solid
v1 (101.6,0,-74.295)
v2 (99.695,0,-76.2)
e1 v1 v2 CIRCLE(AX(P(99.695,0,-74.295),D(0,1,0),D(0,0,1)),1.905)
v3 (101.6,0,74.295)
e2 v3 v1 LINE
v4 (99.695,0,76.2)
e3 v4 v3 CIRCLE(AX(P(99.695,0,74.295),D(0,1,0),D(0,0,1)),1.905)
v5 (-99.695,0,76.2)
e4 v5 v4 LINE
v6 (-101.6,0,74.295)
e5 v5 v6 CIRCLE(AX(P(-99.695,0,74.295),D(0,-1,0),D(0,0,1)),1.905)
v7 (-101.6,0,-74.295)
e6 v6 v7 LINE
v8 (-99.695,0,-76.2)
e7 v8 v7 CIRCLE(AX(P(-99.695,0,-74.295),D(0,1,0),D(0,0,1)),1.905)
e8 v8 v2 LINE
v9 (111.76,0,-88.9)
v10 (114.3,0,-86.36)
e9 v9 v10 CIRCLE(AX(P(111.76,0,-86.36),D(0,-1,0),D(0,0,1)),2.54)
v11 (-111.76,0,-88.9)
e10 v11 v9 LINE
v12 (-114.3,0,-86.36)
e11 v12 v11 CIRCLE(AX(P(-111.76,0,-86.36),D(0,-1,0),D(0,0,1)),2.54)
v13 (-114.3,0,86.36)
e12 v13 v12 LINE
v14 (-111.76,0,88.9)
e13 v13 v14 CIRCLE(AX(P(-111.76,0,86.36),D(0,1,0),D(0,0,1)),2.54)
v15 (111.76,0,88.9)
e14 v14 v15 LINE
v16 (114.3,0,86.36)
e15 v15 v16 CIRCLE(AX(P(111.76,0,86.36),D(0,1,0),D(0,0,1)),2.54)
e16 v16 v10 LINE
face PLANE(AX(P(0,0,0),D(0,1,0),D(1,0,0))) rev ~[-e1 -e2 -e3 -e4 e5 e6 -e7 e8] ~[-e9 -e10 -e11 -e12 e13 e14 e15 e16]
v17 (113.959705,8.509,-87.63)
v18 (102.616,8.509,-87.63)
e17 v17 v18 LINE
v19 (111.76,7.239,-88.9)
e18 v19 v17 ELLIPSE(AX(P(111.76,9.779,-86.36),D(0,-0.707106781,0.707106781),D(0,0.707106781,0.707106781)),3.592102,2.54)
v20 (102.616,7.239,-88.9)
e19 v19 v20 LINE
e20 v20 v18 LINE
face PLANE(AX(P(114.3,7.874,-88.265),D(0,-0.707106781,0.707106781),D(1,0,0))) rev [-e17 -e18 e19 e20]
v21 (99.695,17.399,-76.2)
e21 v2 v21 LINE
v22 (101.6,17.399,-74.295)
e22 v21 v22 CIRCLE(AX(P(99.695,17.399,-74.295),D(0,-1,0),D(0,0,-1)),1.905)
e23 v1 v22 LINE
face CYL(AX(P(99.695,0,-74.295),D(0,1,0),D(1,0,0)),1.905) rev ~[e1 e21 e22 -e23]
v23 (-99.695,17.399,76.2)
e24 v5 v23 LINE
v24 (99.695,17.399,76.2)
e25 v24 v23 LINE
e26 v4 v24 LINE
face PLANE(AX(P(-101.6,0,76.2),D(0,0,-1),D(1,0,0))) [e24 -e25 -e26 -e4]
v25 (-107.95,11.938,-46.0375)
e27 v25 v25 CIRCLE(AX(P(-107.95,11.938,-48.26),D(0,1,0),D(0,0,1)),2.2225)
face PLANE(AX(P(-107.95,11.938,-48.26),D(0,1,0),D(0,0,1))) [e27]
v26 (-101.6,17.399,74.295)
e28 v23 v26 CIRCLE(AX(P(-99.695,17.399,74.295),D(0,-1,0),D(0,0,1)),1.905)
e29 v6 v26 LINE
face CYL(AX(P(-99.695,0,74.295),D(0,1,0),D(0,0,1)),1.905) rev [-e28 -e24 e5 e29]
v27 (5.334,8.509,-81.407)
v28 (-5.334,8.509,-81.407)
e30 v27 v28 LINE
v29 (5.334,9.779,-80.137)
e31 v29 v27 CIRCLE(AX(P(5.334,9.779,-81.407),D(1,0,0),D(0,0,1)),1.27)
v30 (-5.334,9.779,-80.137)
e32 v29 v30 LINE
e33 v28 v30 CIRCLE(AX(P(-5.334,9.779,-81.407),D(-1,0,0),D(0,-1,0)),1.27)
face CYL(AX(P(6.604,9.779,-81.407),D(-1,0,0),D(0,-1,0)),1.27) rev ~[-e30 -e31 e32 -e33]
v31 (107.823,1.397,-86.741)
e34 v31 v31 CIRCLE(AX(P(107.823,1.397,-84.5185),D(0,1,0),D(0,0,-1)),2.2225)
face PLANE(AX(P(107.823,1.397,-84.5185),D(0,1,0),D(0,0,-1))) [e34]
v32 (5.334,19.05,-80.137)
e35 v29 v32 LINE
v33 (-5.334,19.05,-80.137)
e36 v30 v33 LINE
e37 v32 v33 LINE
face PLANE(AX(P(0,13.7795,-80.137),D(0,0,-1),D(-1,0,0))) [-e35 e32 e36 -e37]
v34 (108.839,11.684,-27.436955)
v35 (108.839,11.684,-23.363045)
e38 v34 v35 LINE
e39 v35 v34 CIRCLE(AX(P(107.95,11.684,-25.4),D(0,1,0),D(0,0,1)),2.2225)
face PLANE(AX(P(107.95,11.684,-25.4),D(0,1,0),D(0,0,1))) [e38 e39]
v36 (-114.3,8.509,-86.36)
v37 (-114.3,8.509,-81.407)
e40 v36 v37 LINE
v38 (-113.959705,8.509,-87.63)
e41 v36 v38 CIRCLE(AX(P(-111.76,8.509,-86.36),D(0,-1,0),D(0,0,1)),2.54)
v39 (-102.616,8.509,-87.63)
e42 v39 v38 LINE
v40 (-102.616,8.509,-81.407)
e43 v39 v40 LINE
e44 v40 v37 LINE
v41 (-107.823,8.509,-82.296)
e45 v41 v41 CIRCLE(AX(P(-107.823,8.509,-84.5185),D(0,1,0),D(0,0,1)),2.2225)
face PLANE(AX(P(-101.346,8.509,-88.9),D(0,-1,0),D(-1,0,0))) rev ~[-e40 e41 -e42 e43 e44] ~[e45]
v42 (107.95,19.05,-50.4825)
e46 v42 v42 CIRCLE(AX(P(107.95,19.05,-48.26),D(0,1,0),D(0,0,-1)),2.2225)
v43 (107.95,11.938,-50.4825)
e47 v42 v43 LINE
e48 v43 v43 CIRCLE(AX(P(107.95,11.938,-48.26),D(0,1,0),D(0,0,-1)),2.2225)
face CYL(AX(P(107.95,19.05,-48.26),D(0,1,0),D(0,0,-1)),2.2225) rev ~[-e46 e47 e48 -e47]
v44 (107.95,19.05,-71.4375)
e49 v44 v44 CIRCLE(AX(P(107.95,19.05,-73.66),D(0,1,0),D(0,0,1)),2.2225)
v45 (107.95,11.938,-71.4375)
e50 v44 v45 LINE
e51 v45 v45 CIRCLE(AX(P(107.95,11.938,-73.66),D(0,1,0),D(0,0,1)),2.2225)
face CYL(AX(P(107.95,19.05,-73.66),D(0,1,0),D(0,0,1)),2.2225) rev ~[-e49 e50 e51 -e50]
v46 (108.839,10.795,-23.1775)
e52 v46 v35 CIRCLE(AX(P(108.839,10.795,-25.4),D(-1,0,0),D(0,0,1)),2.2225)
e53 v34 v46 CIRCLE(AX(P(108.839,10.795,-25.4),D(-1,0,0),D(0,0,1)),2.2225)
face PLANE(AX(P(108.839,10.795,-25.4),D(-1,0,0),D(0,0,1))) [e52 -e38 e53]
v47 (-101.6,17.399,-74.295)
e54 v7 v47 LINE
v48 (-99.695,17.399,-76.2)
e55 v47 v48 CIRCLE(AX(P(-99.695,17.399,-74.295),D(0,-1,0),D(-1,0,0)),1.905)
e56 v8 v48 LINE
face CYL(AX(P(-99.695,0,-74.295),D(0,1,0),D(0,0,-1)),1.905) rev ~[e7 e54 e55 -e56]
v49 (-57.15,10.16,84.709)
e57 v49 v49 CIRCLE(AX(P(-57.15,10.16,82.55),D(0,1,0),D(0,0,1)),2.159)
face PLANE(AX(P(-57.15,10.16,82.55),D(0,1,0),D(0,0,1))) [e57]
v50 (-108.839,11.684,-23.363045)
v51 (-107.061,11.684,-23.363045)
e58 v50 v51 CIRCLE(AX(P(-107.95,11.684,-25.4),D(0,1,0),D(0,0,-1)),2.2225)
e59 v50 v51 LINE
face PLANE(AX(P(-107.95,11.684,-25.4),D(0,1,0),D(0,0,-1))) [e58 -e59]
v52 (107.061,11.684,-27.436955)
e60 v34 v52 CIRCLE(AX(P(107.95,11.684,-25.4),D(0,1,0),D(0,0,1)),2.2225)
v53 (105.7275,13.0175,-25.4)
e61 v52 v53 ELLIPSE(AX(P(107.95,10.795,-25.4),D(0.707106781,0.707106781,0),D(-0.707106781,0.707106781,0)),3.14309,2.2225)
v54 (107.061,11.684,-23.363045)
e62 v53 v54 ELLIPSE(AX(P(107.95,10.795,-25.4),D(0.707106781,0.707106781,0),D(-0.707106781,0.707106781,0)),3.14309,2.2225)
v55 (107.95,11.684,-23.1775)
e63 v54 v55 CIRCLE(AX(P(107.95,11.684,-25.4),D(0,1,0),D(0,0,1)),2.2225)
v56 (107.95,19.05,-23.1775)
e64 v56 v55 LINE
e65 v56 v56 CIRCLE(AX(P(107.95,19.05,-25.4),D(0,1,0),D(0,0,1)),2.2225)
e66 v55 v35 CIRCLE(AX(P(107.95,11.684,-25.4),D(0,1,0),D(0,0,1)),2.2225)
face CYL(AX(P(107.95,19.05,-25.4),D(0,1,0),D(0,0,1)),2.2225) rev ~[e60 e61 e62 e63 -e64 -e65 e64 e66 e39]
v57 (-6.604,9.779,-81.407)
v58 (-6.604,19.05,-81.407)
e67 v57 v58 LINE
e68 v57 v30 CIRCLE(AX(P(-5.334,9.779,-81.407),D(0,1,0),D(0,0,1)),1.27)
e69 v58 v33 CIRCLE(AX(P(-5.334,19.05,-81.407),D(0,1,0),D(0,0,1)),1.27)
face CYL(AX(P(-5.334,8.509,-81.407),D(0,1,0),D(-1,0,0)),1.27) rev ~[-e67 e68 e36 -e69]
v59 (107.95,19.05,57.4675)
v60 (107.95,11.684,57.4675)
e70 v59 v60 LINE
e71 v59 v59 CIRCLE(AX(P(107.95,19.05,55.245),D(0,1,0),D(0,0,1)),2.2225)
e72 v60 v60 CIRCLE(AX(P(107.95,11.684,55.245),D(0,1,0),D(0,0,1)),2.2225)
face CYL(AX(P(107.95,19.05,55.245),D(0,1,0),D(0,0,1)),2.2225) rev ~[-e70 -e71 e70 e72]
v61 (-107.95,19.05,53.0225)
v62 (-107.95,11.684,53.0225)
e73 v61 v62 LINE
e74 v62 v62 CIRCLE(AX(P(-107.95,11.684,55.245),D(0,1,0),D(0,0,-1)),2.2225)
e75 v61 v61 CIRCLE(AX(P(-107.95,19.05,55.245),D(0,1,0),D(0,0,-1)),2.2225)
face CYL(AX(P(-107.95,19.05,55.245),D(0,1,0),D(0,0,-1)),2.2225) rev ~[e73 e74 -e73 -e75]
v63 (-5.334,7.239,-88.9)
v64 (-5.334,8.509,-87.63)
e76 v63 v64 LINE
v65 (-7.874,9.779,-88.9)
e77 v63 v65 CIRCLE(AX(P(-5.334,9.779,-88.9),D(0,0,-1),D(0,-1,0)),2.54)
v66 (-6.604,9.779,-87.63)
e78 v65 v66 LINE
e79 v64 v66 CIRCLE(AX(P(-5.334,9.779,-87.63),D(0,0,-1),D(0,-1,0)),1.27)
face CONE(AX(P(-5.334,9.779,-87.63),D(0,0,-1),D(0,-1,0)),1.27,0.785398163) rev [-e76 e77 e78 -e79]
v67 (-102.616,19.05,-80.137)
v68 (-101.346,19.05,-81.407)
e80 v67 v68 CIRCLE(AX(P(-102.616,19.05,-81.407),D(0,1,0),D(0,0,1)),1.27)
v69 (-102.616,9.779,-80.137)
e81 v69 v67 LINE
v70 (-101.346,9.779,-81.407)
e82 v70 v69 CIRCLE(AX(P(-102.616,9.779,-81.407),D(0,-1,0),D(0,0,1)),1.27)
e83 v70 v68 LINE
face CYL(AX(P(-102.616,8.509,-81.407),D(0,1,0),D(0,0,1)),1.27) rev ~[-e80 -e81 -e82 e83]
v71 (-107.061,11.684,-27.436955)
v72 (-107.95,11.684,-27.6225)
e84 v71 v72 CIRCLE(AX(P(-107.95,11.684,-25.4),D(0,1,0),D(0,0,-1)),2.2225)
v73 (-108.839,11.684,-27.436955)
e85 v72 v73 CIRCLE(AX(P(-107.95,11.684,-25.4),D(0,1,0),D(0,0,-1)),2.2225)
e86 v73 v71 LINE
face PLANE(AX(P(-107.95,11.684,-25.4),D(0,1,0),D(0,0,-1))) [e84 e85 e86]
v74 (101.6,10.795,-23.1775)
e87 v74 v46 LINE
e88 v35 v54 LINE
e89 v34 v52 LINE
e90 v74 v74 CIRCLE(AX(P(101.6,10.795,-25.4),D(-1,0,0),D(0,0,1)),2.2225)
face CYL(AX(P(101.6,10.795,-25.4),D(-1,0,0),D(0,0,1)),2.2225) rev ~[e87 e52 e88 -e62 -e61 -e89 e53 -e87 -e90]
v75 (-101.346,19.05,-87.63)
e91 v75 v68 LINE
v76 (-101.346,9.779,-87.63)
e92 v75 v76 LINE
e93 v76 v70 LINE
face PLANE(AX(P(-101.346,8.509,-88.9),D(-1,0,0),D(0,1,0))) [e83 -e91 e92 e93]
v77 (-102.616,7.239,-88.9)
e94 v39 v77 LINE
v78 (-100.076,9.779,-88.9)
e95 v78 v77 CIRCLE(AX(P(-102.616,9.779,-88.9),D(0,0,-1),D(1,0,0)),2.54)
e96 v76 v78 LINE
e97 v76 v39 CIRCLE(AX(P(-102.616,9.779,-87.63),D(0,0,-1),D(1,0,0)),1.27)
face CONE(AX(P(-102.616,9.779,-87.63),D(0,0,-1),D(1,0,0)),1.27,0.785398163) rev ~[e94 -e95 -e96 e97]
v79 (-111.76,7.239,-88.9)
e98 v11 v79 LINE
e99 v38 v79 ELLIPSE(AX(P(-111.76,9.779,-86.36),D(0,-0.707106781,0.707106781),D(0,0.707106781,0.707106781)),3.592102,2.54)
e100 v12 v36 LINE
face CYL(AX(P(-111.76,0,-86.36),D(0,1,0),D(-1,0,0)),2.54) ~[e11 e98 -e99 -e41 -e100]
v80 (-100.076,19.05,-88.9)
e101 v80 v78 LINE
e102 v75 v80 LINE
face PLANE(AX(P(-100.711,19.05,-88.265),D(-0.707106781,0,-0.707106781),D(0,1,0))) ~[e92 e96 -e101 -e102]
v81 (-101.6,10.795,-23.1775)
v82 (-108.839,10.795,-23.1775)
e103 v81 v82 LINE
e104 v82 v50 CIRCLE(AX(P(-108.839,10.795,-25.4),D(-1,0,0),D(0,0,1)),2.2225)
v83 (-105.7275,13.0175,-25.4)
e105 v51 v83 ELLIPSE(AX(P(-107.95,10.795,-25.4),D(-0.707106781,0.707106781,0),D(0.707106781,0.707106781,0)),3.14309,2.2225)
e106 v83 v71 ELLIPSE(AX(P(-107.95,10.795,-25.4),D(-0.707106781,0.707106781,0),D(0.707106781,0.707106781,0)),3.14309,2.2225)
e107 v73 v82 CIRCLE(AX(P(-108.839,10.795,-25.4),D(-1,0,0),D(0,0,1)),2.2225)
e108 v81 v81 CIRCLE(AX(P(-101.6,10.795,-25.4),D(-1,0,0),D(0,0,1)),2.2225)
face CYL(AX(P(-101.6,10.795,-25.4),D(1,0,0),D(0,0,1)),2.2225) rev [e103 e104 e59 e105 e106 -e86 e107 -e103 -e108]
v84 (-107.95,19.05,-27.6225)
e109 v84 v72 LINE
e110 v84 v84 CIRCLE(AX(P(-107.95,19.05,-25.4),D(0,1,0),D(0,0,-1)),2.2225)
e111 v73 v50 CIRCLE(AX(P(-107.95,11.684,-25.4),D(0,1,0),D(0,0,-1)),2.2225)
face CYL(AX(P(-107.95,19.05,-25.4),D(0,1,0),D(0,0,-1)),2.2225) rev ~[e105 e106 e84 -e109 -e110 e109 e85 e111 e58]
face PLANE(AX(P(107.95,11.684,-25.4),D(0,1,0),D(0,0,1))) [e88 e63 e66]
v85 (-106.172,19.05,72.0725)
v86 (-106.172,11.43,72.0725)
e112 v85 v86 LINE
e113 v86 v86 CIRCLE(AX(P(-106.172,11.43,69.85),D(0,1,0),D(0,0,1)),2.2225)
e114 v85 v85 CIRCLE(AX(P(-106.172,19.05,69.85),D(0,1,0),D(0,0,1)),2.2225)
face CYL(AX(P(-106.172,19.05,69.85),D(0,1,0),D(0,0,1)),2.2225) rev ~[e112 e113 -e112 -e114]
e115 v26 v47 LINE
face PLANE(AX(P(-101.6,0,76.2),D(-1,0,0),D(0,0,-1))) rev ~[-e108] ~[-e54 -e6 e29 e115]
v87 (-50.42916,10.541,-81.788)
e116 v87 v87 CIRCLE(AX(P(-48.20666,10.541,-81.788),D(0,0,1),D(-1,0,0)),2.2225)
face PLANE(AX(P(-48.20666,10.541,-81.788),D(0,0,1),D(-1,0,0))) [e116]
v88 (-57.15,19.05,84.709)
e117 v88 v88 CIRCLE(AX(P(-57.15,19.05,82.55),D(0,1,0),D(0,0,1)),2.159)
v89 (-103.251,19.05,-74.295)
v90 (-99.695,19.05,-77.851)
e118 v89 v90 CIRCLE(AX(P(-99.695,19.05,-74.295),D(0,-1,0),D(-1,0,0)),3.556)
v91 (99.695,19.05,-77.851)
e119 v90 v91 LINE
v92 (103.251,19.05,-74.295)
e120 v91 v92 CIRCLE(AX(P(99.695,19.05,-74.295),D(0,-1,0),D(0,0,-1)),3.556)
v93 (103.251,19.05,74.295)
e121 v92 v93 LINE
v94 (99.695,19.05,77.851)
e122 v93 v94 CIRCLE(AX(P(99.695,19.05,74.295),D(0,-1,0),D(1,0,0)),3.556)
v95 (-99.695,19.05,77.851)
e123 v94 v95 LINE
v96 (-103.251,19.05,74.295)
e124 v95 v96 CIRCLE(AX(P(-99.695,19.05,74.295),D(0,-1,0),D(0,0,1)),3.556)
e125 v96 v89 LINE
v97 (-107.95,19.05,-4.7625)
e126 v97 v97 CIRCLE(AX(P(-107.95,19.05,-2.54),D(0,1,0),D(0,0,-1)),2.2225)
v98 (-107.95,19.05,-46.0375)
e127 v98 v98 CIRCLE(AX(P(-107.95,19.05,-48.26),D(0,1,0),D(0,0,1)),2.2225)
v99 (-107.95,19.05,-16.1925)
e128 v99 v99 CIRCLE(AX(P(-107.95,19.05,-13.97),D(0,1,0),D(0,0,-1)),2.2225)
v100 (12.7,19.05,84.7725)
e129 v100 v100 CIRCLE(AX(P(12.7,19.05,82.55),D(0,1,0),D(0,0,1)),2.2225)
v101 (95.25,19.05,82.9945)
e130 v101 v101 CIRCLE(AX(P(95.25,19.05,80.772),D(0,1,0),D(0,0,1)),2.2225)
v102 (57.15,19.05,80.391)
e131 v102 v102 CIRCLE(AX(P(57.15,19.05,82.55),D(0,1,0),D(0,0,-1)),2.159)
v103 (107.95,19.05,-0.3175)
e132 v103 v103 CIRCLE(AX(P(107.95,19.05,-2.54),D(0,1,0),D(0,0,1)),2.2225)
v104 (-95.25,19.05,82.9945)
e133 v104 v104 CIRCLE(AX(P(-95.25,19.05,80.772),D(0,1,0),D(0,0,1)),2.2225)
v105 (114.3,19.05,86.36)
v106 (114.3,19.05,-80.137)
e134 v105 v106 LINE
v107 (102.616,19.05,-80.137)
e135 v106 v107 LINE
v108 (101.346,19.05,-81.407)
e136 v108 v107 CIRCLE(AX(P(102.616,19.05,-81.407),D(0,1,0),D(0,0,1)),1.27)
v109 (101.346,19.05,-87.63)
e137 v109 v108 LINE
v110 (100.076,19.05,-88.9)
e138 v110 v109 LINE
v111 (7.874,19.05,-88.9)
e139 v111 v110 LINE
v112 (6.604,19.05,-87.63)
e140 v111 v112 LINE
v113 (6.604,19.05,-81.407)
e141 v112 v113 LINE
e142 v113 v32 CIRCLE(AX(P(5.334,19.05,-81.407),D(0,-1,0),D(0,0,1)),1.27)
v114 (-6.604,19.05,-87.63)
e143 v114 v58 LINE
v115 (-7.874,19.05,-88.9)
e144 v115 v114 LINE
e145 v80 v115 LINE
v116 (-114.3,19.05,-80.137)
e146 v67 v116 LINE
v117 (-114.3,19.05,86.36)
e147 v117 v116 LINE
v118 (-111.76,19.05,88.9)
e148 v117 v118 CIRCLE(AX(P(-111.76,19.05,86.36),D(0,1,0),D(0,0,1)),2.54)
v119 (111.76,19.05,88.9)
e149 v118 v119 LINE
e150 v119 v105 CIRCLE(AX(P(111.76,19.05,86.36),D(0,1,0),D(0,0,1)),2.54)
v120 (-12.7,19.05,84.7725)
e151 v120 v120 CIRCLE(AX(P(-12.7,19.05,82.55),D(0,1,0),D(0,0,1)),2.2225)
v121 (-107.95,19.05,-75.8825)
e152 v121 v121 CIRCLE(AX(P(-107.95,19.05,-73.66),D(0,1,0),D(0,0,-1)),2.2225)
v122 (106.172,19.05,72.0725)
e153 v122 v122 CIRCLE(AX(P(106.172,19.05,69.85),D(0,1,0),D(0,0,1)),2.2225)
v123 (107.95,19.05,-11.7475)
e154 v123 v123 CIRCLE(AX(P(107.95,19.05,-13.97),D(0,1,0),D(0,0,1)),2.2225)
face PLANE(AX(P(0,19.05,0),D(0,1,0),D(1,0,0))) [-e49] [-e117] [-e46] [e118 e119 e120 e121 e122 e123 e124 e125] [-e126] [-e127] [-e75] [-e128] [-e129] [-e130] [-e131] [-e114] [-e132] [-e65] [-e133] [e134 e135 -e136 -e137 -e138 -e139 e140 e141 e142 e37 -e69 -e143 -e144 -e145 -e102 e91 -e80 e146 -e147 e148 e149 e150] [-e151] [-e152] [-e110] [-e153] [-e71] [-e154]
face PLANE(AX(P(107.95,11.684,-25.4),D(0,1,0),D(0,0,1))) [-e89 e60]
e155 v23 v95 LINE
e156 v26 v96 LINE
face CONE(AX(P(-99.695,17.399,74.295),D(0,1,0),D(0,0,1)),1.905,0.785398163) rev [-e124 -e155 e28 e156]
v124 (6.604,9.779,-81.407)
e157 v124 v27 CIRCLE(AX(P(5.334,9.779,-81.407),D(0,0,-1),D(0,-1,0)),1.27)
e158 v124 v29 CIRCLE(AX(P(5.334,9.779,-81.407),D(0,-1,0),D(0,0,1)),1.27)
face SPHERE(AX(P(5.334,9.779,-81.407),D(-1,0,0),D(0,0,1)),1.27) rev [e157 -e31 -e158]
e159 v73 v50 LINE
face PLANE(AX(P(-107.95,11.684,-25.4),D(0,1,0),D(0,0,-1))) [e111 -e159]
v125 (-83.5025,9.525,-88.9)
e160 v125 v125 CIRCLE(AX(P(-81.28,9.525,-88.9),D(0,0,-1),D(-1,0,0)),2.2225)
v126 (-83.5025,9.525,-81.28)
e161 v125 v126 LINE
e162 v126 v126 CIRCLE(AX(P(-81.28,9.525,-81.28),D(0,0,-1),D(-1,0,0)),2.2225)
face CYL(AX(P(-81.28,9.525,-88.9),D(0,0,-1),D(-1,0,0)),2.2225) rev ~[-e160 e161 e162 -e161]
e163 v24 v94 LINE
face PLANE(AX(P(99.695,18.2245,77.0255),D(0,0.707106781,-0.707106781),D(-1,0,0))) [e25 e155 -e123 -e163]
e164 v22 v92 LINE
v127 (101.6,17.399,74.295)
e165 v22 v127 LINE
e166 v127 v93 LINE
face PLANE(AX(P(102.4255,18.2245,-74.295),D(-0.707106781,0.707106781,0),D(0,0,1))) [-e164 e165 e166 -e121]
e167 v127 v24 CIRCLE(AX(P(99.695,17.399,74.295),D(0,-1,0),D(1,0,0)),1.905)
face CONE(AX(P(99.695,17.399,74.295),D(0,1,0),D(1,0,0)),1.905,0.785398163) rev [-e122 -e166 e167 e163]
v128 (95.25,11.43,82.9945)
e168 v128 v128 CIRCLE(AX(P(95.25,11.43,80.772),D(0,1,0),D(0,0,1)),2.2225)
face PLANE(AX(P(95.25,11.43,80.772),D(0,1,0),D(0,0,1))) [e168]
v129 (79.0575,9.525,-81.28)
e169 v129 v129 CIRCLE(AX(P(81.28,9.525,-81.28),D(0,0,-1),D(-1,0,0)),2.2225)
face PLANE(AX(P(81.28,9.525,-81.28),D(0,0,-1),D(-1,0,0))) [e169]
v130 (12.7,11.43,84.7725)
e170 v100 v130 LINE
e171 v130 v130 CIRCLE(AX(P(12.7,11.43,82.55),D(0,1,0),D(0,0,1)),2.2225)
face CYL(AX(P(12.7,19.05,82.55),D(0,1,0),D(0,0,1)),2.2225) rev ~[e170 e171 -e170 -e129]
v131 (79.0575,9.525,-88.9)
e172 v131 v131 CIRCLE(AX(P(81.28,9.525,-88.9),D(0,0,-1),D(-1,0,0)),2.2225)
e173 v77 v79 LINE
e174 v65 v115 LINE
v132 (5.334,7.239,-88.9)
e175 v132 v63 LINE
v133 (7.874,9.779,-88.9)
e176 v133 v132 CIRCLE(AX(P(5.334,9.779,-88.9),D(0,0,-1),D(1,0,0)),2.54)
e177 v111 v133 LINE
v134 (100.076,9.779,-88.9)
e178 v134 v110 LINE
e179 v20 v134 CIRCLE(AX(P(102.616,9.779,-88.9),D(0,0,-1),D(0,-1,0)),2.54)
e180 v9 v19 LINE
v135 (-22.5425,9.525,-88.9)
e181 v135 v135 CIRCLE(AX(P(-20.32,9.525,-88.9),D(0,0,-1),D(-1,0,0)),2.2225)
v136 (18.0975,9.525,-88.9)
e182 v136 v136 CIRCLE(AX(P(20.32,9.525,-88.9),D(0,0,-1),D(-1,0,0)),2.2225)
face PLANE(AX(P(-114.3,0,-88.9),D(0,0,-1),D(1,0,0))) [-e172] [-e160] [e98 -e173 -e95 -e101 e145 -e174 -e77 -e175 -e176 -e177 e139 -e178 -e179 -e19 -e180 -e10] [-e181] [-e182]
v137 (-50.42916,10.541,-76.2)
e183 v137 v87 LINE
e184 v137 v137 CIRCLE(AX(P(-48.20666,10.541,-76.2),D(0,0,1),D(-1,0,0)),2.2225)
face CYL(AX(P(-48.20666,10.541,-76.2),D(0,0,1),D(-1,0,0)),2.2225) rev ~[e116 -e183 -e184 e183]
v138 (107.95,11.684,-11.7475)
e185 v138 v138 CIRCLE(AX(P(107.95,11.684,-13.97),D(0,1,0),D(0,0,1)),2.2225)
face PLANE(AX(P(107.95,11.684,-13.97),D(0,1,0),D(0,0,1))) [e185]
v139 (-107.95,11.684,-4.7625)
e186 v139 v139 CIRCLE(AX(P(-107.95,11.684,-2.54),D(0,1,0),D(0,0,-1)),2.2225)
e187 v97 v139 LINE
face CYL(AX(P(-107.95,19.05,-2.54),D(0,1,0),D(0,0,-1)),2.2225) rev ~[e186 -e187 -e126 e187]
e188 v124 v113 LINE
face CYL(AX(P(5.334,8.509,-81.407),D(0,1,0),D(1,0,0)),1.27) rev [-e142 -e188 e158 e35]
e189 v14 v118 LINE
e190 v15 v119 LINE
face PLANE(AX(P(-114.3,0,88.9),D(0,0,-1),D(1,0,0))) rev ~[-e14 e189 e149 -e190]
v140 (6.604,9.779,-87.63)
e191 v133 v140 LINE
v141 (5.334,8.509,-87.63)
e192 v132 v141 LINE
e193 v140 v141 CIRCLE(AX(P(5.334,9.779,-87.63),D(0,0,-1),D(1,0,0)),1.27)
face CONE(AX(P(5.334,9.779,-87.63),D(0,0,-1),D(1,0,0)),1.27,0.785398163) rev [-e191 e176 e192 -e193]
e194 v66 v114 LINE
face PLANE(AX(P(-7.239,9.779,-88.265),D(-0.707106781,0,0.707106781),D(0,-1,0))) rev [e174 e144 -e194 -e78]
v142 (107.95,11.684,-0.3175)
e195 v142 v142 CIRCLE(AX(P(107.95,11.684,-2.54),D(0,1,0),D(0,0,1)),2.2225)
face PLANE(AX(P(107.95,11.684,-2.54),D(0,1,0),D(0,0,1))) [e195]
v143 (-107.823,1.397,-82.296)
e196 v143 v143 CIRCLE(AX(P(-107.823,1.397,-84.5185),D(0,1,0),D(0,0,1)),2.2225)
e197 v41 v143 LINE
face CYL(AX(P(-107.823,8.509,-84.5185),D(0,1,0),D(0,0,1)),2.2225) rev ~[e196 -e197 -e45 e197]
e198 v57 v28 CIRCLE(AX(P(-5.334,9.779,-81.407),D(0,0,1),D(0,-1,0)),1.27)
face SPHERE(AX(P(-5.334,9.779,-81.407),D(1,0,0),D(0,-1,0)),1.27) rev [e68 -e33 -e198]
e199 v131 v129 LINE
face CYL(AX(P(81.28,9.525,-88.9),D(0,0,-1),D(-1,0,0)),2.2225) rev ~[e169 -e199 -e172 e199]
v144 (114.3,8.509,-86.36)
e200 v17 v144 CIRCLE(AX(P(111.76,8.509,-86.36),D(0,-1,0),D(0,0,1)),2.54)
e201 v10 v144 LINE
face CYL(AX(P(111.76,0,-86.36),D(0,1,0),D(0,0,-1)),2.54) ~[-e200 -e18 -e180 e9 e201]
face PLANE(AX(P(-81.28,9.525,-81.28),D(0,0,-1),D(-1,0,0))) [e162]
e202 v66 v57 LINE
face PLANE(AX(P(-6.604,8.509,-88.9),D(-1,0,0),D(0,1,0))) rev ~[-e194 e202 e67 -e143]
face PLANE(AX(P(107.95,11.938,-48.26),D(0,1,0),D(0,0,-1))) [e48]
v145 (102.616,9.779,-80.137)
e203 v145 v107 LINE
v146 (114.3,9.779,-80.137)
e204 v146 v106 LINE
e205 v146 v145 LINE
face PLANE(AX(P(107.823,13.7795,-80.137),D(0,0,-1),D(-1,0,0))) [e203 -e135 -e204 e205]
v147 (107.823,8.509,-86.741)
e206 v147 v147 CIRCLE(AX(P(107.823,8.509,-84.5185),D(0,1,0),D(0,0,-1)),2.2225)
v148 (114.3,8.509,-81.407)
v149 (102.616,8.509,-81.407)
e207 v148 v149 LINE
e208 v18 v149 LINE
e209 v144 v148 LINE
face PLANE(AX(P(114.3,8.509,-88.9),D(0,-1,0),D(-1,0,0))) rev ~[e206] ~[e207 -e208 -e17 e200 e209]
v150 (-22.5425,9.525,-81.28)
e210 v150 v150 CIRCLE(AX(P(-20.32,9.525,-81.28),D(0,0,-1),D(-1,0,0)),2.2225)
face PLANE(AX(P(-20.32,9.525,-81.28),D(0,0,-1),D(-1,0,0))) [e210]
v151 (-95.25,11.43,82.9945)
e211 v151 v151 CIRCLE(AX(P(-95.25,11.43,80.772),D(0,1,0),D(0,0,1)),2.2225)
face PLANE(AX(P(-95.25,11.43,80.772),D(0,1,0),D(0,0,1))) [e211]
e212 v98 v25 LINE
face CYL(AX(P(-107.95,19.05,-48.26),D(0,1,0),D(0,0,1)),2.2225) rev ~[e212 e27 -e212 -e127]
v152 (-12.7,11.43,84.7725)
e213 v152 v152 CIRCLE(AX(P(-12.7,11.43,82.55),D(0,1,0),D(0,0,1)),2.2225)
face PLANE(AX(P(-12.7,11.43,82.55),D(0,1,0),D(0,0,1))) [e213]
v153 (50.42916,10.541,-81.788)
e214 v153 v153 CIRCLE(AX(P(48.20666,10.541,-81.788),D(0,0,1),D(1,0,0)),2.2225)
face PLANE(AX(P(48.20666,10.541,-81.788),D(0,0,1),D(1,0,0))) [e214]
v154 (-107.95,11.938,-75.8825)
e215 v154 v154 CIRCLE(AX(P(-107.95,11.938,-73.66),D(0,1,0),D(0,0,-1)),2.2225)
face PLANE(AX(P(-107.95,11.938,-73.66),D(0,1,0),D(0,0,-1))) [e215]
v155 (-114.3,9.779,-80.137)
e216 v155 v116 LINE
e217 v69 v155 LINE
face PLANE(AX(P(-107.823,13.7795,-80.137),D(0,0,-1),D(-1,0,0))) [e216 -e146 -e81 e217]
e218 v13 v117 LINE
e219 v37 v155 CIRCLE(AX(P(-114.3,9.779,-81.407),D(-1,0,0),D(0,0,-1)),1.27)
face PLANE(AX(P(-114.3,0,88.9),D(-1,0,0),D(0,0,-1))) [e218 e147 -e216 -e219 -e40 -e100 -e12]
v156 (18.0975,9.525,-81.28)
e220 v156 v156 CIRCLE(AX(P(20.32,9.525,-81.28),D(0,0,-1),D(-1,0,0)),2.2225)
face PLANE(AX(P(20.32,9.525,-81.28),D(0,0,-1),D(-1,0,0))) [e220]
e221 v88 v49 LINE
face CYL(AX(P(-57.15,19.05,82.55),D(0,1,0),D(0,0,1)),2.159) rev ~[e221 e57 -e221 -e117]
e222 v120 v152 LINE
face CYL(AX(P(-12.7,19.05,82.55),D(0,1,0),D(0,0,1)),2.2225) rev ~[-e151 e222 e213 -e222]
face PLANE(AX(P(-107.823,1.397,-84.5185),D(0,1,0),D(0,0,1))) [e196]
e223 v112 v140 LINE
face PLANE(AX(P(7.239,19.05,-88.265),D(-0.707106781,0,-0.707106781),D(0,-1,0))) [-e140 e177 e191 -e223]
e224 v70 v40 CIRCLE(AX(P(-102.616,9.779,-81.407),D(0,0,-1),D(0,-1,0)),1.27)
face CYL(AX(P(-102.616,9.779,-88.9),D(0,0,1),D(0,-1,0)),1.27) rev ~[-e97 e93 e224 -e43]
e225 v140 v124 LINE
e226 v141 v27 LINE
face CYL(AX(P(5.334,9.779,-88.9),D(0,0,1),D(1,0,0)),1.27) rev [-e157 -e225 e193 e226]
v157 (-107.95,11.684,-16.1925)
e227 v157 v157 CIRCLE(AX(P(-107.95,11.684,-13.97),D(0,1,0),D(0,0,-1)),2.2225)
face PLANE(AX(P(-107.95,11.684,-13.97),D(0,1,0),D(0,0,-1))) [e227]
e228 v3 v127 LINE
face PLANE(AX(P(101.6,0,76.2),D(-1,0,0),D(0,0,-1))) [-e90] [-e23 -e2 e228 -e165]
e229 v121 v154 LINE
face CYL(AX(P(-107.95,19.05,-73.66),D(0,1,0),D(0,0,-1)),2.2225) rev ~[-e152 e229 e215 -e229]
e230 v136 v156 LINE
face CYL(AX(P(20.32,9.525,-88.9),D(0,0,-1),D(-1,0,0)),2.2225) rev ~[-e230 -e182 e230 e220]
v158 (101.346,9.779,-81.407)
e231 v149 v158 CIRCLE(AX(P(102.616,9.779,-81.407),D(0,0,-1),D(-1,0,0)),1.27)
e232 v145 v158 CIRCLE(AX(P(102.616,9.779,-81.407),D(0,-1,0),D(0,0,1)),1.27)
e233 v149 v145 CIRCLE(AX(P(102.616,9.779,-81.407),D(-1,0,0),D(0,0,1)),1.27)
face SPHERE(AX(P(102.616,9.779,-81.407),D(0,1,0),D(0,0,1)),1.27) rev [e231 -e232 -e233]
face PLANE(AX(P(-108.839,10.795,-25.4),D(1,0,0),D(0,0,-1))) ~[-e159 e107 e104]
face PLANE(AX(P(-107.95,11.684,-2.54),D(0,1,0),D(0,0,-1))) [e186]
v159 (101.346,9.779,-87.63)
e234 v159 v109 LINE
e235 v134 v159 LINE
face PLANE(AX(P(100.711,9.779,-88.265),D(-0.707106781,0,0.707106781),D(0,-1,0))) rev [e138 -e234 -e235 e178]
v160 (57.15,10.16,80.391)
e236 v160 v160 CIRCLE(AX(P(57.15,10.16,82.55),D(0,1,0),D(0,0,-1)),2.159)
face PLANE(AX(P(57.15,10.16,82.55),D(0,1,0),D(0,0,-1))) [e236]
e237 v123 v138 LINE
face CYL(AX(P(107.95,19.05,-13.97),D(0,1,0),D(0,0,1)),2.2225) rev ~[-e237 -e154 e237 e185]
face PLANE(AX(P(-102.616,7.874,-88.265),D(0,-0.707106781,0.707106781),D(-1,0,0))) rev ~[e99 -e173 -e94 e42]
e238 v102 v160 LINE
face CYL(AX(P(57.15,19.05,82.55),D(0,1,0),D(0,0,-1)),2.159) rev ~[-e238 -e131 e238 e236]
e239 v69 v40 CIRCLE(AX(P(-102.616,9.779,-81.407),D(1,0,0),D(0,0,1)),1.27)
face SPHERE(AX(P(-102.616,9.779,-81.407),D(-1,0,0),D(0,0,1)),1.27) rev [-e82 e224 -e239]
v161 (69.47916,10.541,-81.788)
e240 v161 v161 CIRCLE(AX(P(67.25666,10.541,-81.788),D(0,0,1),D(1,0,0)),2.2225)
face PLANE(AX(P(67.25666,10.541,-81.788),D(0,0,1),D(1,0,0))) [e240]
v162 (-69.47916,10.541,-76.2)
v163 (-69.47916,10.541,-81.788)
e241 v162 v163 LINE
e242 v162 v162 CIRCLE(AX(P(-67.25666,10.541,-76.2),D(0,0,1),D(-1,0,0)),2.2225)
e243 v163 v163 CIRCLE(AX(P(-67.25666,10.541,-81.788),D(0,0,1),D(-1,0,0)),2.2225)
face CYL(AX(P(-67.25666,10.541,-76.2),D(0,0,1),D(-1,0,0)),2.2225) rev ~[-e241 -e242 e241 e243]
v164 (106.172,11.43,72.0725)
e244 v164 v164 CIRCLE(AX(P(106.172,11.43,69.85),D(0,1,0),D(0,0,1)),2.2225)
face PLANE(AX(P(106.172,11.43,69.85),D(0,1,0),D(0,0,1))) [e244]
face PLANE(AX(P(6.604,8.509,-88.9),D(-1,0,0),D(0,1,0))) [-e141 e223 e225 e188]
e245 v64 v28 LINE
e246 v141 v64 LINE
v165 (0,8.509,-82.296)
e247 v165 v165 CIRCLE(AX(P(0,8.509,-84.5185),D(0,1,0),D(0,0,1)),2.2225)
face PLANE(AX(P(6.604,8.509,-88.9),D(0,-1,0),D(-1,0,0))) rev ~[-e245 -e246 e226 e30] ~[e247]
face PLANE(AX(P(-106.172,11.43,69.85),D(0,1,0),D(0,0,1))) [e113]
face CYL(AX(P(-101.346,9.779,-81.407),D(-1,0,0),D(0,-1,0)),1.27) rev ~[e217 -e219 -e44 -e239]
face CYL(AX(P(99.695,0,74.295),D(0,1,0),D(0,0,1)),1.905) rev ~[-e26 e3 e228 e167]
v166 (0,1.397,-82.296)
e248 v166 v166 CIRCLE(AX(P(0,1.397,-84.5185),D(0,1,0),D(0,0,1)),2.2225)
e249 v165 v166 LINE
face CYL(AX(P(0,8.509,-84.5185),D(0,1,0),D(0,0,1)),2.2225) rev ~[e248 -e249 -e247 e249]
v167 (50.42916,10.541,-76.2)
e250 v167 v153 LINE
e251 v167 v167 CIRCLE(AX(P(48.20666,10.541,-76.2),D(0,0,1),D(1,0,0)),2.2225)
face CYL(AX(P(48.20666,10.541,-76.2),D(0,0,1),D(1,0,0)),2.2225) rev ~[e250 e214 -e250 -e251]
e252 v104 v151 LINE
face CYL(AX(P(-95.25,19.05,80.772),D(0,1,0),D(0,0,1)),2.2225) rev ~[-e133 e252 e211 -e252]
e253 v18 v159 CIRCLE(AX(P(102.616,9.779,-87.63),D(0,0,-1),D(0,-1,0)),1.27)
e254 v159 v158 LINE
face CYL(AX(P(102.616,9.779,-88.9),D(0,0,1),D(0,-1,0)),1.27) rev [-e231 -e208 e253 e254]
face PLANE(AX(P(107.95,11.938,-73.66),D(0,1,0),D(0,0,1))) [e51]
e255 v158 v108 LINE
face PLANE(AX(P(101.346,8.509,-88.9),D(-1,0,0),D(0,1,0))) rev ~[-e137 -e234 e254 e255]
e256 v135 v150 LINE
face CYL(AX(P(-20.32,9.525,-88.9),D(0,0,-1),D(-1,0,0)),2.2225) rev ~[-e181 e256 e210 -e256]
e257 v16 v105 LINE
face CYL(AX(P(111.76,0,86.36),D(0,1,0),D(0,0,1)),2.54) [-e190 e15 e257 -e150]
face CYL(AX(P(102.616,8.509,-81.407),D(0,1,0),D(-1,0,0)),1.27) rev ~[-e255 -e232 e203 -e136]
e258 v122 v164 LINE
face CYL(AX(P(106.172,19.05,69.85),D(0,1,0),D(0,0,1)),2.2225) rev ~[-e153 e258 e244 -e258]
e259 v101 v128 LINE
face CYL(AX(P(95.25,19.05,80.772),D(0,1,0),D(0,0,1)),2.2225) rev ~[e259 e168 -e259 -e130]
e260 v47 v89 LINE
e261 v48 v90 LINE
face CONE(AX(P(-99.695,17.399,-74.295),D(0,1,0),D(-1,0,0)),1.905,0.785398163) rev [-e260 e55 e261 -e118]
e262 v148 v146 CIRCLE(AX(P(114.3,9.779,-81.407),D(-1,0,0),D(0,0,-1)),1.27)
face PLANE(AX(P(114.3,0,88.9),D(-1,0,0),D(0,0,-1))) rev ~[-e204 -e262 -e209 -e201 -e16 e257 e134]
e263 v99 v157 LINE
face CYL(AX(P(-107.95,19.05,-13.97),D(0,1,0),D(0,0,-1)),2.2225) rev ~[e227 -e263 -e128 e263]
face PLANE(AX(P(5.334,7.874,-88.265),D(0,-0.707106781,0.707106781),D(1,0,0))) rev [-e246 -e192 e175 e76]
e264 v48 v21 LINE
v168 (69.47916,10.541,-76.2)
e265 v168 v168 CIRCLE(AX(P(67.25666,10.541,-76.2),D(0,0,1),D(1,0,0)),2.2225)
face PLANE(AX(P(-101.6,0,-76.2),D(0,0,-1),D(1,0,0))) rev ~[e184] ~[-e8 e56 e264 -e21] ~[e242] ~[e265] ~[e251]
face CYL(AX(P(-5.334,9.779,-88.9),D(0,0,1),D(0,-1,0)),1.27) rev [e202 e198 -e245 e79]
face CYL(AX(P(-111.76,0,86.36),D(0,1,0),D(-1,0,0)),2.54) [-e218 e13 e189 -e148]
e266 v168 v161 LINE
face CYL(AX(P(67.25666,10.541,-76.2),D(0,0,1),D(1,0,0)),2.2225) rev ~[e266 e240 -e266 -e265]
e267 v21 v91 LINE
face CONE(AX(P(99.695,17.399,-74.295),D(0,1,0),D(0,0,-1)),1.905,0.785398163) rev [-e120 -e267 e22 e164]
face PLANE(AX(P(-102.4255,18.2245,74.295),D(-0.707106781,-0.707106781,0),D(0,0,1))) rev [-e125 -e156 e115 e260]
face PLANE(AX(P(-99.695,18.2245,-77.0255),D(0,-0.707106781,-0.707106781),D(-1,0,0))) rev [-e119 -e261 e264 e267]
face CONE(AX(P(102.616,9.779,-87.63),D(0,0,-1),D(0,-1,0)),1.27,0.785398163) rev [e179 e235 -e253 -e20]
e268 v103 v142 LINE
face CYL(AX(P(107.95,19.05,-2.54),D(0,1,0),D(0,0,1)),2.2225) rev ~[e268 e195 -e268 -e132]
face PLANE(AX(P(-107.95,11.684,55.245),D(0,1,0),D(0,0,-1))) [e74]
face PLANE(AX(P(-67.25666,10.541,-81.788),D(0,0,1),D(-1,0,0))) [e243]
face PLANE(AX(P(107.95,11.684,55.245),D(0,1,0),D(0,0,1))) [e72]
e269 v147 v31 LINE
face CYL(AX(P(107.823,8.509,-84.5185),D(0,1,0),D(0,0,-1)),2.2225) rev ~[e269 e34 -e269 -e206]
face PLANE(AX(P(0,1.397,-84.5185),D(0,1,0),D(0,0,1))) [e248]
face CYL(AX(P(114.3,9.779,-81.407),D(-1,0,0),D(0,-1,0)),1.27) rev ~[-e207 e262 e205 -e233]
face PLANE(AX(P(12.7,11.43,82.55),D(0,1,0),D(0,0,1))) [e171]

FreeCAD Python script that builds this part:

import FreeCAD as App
import Part
import Sketcher
from FreeCAD import Vector
Q = App.Units.Quantity


def edges_at(feature, points):
    """Names of the edges that pass closest to the given points."""
    edges = feature.Shape.Edges
    near = lambda p: min(range(len(edges)), key=lambda i: edges[i].distToShape(Part.Vertex(*p))[0])
    return sorted({f"Edge{near(p) + 1}" for p in points})

doc = App.newDocument("Part")
body = doc.addObject("PartDesign::Body", "Body")

# Sketch on XZ plane
sketch1 = body.newObject("Sketcher::SketchObject", "Sketch")
sketch1.AttachmentSupport = (doc.getObject("XZ_Plane"), [""])
sketch1.MapMode = "FlatFace"
sketch1.addGeometry([
    Part.LineSegment(Vector(-114.3, -88.9, 0), Vector(-114.3, 88.9, 0)),  # 0
    Part.LineSegment(Vector(-114.3, 88.9, 0), Vector(114.3, 88.9, 0)),  # 1
    Part.LineSegment(Vector(114.3, 88.9, 0), Vector(114.3, -88.9, 0)),  # 2
    Part.LineSegment(Vector(114.3, -88.9, 0), Vector(-114.3, -88.9, 0)),  # 3
    Part.LineSegment(Vector(101.6, 76.2, 0), Vector(-101.6, 76.2, 0)),  # 4
    Part.LineSegment(Vector(-101.6, 76.2, 0), Vector(-101.6, -76.2, 0)),  # 5
    Part.LineSegment(Vector(-101.6, -76.2, 0), Vector(101.6, -76.2, 0)),  # 6
    Part.LineSegment(Vector(101.6, -76.2, 0), Vector(101.6, 76.2, 0)),  # 7
], False)
sketch1.addConstraint([
    Sketcher.Constraint("Coincident", 0, 2, 1, 1),
    Sketcher.Constraint("Coincident", 1, 2, 2, 1),
    Sketcher.Constraint("Coincident", 2, 2, 3, 1),
    Sketcher.Constraint("Coincident", 3, 2, 0, 1),
    Sketcher.Constraint("Coincident", 4, 2, 5, 1),
    Sketcher.Constraint("Coincident", 5, 2, 6, 1),
    Sketcher.Constraint("Coincident", 6, 2, 7, 1),
    Sketcher.Constraint("Coincident", 7, 2, 4, 1),
    Sketcher.Constraint("Vertical", 0),
    Sketcher.Constraint("Horizontal", 1),
    Sketcher.Constraint("Vertical", 2),
    Sketcher.Constraint("Horizontal", 3),
    Sketcher.Constraint("Horizontal", 4),
    Sketcher.Constraint("Vertical", 5),
    Sketcher.Constraint("Horizontal", 6),
    Sketcher.Constraint("Vertical", 7),
    Sketcher.Constraint("Symmetric", 0, 2, 2, 2, -1, 1),
    Sketcher.Constraint("Symmetric", 4, 2, 6, 2, -1, 1),
    Sketcher.Constraint("DistanceX", 1, 1, 1, 2, Q("9 in")),
    Sketcher.Constraint("DistanceX", 4, 2, 4, 1, Q("8 in")),
    Sketcher.Constraint("DistanceY", 0, 1, 0, 2, Q("7 in")),
    Sketcher.Constraint("DistanceY", 5, 2, 5, 1, Q("6 in")),
])
pad1 = body.newObject("PartDesign::Pad", "Pad")
pad1.Profile = sketch1
pad1.Length = Q("0.75 in")
pad1.Reversed = True

# Sketch on XY plane
sketch2 = body.newObject("Sketcher::SketchObject", "Sketch001")
sketch2.AttachmentSupport = (doc.getObject("XY_Plane"), [""])
sketch2.MapMode = "FlatFace"
sketch2.AttachmentOffset = App.Placement(Vector(0, 0, -3.5 * 25.4), App.Rotation())
sketch2.addGeometry([
    Part.LineSegment(Vector(-101.346, 19.05, 0), Vector(-101.346, 8.509, 0)),  # 0
    Part.LineSegment(Vector(-101.346, 8.509, 0), Vector(-114.3, 8.509, 0)),  # 1
    Part.LineSegment(Vector(-114.3, 8.509, 0), Vector(-114.3, 19.05, 0)),  # 2
    Part.LineSegment(Vector(-114.3, 19.05, 0), Vector(-101.346, 19.05, 0)),  # 3
    Part.LineSegment(Vector(6.604, 19.05, 0), Vector(6.604, 8.509, 0)),  # 4
    Part.LineSegment(Vector(6.604, 8.509, 0), Vector(-6.604, 8.509, 0)),  # 5
    Part.LineSegment(Vector(-6.604, 8.509, 0), Vector(-6.604, 19.05, 0)),  # 6
    Part.LineSegment(Vector(-6.604, 19.05, 0), Vector(6.604, 19.05, 0)),  # 7
    Part.LineSegment(Vector(114.3, 19.05, 0), Vector(114.3, 8.509, 0)),  # 8
    Part.LineSegment(Vector(114.3, 8.509, 0), Vector(101.346, 8.509, 0)),  # 9
    Part.LineSegment(Vector(101.346, 8.509, 0), Vector(101.346, 19.05, 0)),  # 10
    Part.LineSegment(Vector(101.346, 19.05, 0), Vector(114.3, 19.05, 0)),  # 11
], False)
sketch2.addConstraint([
    Sketcher.Constraint("Coincident", 0, 2, 1, 1),
    Sketcher.Constraint("Coincident", 1, 2, 2, 1),
    Sketcher.Constraint("Coincident", 2, 2, 3, 1),
    Sketcher.Constraint("Coincident", 3, 2, 0, 1),
    Sketcher.Constraint("Coincident", 4, 2, 5, 1),
    Sketcher.Constraint("Coincident", 5, 2, 6, 1),
    Sketcher.Constraint("Coincident", 6, 2, 7, 1),
    Sketcher.Constraint("Coincident", 7, 2, 4, 1),
    Sketcher.Constraint("Coincident", 8, 2, 9, 1),
    Sketcher.Constraint("Coincident", 9, 2, 10, 1),
    Sketcher.Constraint("Coincident", 10, 2, 11, 1),
    Sketcher.Constraint("Coincident", 11, 2, 8, 1),
    Sketcher.Constraint("Vertical", 0),
    Sketcher.Constraint("Horizontal", 1),
    Sketcher.Constraint("Vertical", 2),
    Sketcher.Constraint("Horizontal", 3),
    Sketcher.Constraint("Vertical", 4),
    Sketcher.Constraint("Horizontal", 5),
    Sketcher.Constraint("Vertical", 6),
    Sketcher.Constraint("Horizontal", 7),
    Sketcher.Constraint("Vertical", 8),
    Sketcher.Constraint("Horizontal", 9),
    Sketcher.Constraint("Vertical", 10),
    Sketcher.Constraint("Horizontal", 11),
    Sketcher.Constraint("Symmetric", 1, 2, 8, 2, -2),
    Sketcher.Constraint("Symmetric", 3, 2, 10, 2, -2),
    Sketcher.Constraint("Horizontal", 1, 2, 4, 2),
    Sketcher.Constraint("Horizontal", 3, 2, 6, 2),
    Sketcher.Constraint("DistanceX", 1, 2, 1, 1, Q("0.51 in")),
    Sketcher.Constraint("DistanceX", 5, 2, 5, 1, Q("0.52 in")),
    Sketcher.Constraint("DistanceX", 1, 2, -1, 1, Q("4.5 in")),
    Sketcher.Constraint("DistanceY", 0, 2, 0, 1, Q("0.415 in")),
    Sketcher.Constraint("DistanceY", -1, 1, 2, 2, Q("0.75 in")),
    Sketcher.Constraint("DistanceX", -1, 1, 4, 2, Q("0.26 in")),
])
pocket1 = body.newObject("PartDesign::Pocket", "Pocket")
pocket1.Profile = sketch2
pocket1.Length = Q("0.345 in")
pocket1.Reversed = True

# Sketch on XZ plane
sketch3 = body.newObject("Sketcher::SketchObject", "Sketch002")
sketch3.AttachmentSupport = (doc.getObject("XZ_Plane"), [""])
sketch3.MapMode = "FlatFace"
sketch3.AttachmentOffset = App.Placement(Vector(0, 0, -0.335 * 25.4), App.Rotation())
sketch3.addGeometry([
    Part.Circle(Vector(-107.823, -84.5185, 0), Vector(0, 0, 1), 2.2225),
    Part.Circle(Vector(0, -84.5185, 0), Vector(0, 0, 1), 2.2225),
    Part.Circle(Vector(107.823, -84.5185, 0), Vector(0, 0, 1), 2.2225),
], False)
sketch3.addConstraint([
    Sketcher.Constraint("Equal", 0, 1),
    Sketcher.Constraint("Equal", 1, 2),
    Sketcher.Constraint("Symmetric", 0, 3, 2, 3, -2),
    Sketcher.Constraint("PointOnObject", 1, 3, -2),
    Sketcher.Constraint("Horizontal", 0, 3, 1, 3),
    Sketcher.Constraint("Diameter", 0, Q("0.175 in")),
    Sketcher.Constraint("DistanceX", 0, 3, 2, 3, Q("8.49 in")),
    Sketcher.Constraint("DistanceY", 0, 3, -1, 1, Q("3.3275 in")),
])
pocket2 = body.newObject("PartDesign::Pocket", "Pocket001")
pocket2.Profile = sketch3
pocket2.Length = Q("0.28 in")
pocket2.Reversed = True
doc.recompute()

fillet = body.newObject("PartDesign::Fillet", "Fillet")
fillet.Base = (pocket2, edges_at(pocket2, [
    (-107.823, 8.509, -80.137),
    (-101.346, 13.78, -80.137),
    (-101.346, 8.509, -84.519),
    (0, 8.509, -80.137),
    (-6.604, 8.509, -84.519),
    (6.604, 13.78, -80.137),
    (6.604, 8.509, -84.519),
    (-6.604, 13.78, -80.137),
    (101.346, 13.78, -80.137),
    (107.823, 8.509, -80.137),
    (101.346, 8.509, -84.519),
]))
fillet.Radius = Q("0.05 in")
doc.recompute()

chamfer = body.newObject("PartDesign::Chamfer", "Chamfer")
chamfer.Base = (fillet, edges_at(fillet, [
    (-108.458, 8.509, -88.9),
    (101.718, 8.881, -88.9),
    (-6.232, 8.881, -88.9),
    (6.232, 8.881, -88.9),
    (-101.718, 8.881, -88.9),
    (-101.346, 14.415, -88.9),
    (6.604, 14.415, -88.9),
    (108.458, 8.509, -88.9),
    (101.346, 14.415, -88.9),
    (-6.604, 14.415, -88.9),
    (0, 8.509, -88.9),
]))
chamfer.Size = Q("0.05 in")

# Sketch on XY plane
sketch4 = body.newObject("Sketcher::SketchObject", "Sketch003")
sketch4.AttachmentSupport = (doc.getObject("XY_Plane"), [""])
sketch4.MapMode = "FlatFace"
sketch4.AttachmentOffset = App.Placement(Vector(0, 0, -3.5 * 25.4), App.Rotation())
sketch4.addGeometry([
    Part.Circle(Vector(20.32, 9.525, 0), Vector(0, 0, 1), 2.2225),
    Part.Circle(Vector(81.28, 9.525, 0), Vector(0, 0, 1), 2.2225),
    Part.Circle(Vector(-81.28, 9.525, 0), Vector(0, 0, 1), 2.2225),
    Part.Circle(Vector(-20.32, 9.525, 0), Vector(0, 0, 1), 2.2225),
], False)
sketch4.addConstraint([
    Sketcher.Constraint("Equal", 0, 1),
    Sketcher.Constraint("Equal", 1, 2),
    Sketcher.Constraint("Equal", 2, 3),
    Sketcher.Constraint("Symmetric", 1, 3, 2, 3, -2),
    Sketcher.Constraint("Symmetric", 0, 3, 3, 3, -2),
    Sketcher.Constraint("Horizontal", 0, 3, 1, 3),
    Sketcher.Constraint("Diameter", 0, Q("0.175 in")),
    Sketcher.Constraint("DistanceX", 2, 3, 0, 3, Q("4 in")),
    Sketcher.Constraint("DistanceX", -1, 1, 0, 3, Q("0.8 in")),
    Sketcher.Constraint("DistanceY", -1, 1, 0, 3, Q("0.375 in")),
])
pocket3 = body.newObject("PartDesign::Pocket", "Pocket002")
pocket3.Profile = sketch4
pocket3.Length = Q("0.3 in")
pocket3.Reversed = True

# Sketch on XZ plane
sketch5 = body.newObject("Sketcher::SketchObject", "Sketch004")
sketch5.AttachmentSupport = (doc.getObject("XZ_Plane"), [""])
sketch5.MapMode = "FlatFace"
sketch5.AttachmentOffset = App.Placement(Vector(0, 0, -0.75 * 25.4), App.Rotation())
sketch5.addGeometry([
    Part.Circle(Vector(-95.25, 80.772, 0), Vector(0, 0, 1), 2.2225),
    Part.Circle(Vector(-106.172, 69.85, 0), Vector(0, 0, 1), 2.2225),
    Part.Circle(Vector(106.172, 69.85, 0), Vector(0, 0, 1), 2.2225),
    Part.Circle(Vector(95.25, 80.772, 0), Vector(0, 0, 1), 2.2225),
], False)
sketch5.addConstraint([
    Sketcher.Constraint("Equal", 0, 1),
    Sketcher.Constraint("Equal", 1, 2),
    Sketcher.Constraint("Equal", 2, 3),
    Sketcher.Constraint("Symmetric", 1, 3, 2, 3, -2),
    Sketcher.Constraint("Symmetric", 0, 3, 3, 3, -2),
    Sketcher.Constraint("Diameter", 0, Q("0.175 in")),
    Sketcher.Constraint("DistanceX", 0, 3, 3, 3, Q("7.5 in")),
    Sketcher.Constraint("DistanceY", -1, 1, 0, 3, Q("3.18 in")),
    Sketcher.Constraint("DistanceX", 1, 3, -1, 1, Q("4.18 in")),
    Sketcher.Constraint("DistanceY", -1, 1, 1, 3, Q("2.75 in")),
])
pocket4 = body.newObject("PartDesign::Pocket", "Pocket003")
pocket4.Profile = sketch5
pocket4.Length = Q("0.3 in")
pocket4.Reversed = True
doc.recompute()

fillet2 = body.newObject("PartDesign::Fillet", "Fillet001")
fillet2.Base = (pocket4, edges_at(pocket4, [
    (101.6, 9.525, 76.2),
    (101.6, 9.525, -76.2),
    (-101.6, 9.525, -76.2),
    (-101.6, 9.525, 76.2),
]))
fillet2.Radius = Q("0.075 in")

# Sketch on XZ plane
sketch6 = body.newObject("Sketcher::SketchObject", "Sketch005")
sketch6.AttachmentSupport = (doc.getObject("XZ_Plane"), [""])
sketch6.MapMode = "FlatFace"
sketch6.AttachmentOffset = App.Placement(Vector(0, 0, -0.75 * 25.4), App.Rotation())
sketch6.addGeometry([
    Part.Circle(Vector(107.95, 55.245, 0), Vector(0, 0, 1), 2.2225),  # 0
    Part.Circle(Vector(107.95, -2.54, 0), Vector(0, 0, 1), 2.2225),  # 1
    Part.Circle(Vector(107.95, -13.97, 0), Vector(0, 0, 1), 2.2225),  # 2
    Part.Circle(Vector(107.95, -25.4, 0), Vector(0, 0, 1), 2.2225),  # 3
    Part.Circle(Vector(-107.95, -25.4, 0), Vector(0, 0, 1), 2.2225),  # 4
    Part.Circle(Vector(-107.95, -13.97, 0), Vector(0, 0, 1), 2.2225),  # 5
    Part.Circle(Vector(-107.95, -2.54, 0), Vector(0, 0, 1), 2.2225),  # 6
    Part.Circle(Vector(-107.95, 55.245, 0), Vector(0, 0, 1), 2.2225),  # 7
], False)
sketch6.addConstraint([
    Sketcher.Constraint("Equal", 0, 1),
    Sketcher.Constraint("Equal", 1, 2),
    Sketcher.Constraint("Equal", 2, 3),
    Sketcher.Constraint("Equal", 3, 4),
    Sketcher.Constraint("Equal", 4, 5),
    Sketcher.Constraint("Equal", 5, 6),
    Sketcher.Constraint("Equal", 6, 7),
    Sketcher.Constraint("Symmetric", 3, 3, 4, 3, -2),
    Sketcher.Constraint("Symmetric", 2, 3, 5, 3, -2),
    Sketcher.Constraint("Symmetric", 1, 3, 6, 3, -2),
    Sketcher.Constraint("Symmetric", 0, 3, 7, 3, -2),
    Sketcher.Constraint("Vertical", 0, 3, 1, 3),
    Sketcher.Constraint("Vertical", 1, 3, 2, 3),
    Sketcher.Constraint("Vertical", 2, 3, 3, 3),
    Sketcher.Constraint("Diameter", 0, Q("0.175 in")),
    Sketcher.Constraint("DistanceY", 3, 3, -1, 1, Q("1 in")),
    Sketcher.Constraint("DistanceY", 1, 3, -1, 1, Q("0.1 in")),
    Sketcher.Constraint("DistanceX", 4, 3, 3, 3, Q("8.5 in")),
    Sketcher.Constraint("DistanceY", 2, 3, -1, 1, Q("0.55 in")),
    Sketcher.Constraint("DistanceY", -1, 1, 0, 3, Q("2.175 in")),
])
pocket5 = body.newObject("PartDesign::Pocket", "Pocket004")
pocket5.Profile = sketch6
pocket5.Length = Q("0.29 in")
pocket5.Reversed = True
doc.recompute()

chamfer2 = body.newObject("PartDesign::Chamfer", "Chamfer001")
chamfer2.Base = (pocket5, edges_at(pocket5, [
    (-101.6, 19.05, 0),
    (0, 19.05, 76.2),
    (101.6, 19.05, 0),
    (0, 19.05, -76.2),
    (-101.042, 19.05, 75.642),
    (101.042, 19.05, 75.642),
    (101.042, 19.05, -75.642),
    (-101.042, 19.05, -75.642),
]))
chamfer2.Size = Q("0.065 in")

# Sketch on XZ plane
sketch7 = body.newObject("Sketcher::SketchObject", "Sketch006")
sketch7.AttachmentSupport = (doc.getObject("XZ_Plane"), [""])
sketch7.MapMode = "FlatFace"
sketch7.AttachmentOffset = App.Placement(Vector(0, 0, -0.75 * 25.4), App.Rotation())
sketch7.addGeometry([
    Part.Circle(Vector(-12.7, 82.55, 0), Vector(0, 0, 1), 2.2225),
    Part.Circle(Vector(12.7, 82.55, 0), Vector(0, 0, 1), 2.2225),
], False)
sketch7.addConstraint([
    Sketcher.Constraint("Equal", 0, 1),
    Sketcher.Constraint("Symmetric", 0, 3, 1, 3, -2),
    Sketcher.Constraint("Diameter", 0, Q("0.175 in")),
    Sketcher.Constraint("DistanceX", 0, 3, 1, 3, Q("1 in")),
    Sketcher.Constraint("DistanceY", -1, 1, 0, 3, Q("3.25 in")),
])
pocket6 = body.newObject("PartDesign::Pocket", "Pocket005")
pocket6.Profile = sketch7
pocket6.Length = Q("0.3 in")
pocket6.Reversed = True

# Sketch on XZ plane
sketch8 = body.newObject("Sketcher::SketchObject", "Sketch007")
sketch8.AttachmentSupport = (doc.getObject("XZ_Plane"), [""])
sketch8.MapMode = "FlatFace"
sketch8.AttachmentOffset = App.Placement(Vector(0, 0, -0.75 * 25.4), App.Rotation())
sketch8.addGeometry([
    Part.Circle(Vector(107.95, -73.66, 0), Vector(0, 0, 1), 2.2225),
    Part.Circle(Vector(107.95, -48.26, 0), Vector(0, 0, 1), 2.2225),
    Part.Circle(Vector(-107.95, -48.26, 0), Vector(0, 0, 1), 2.2225),
    Part.Circle(Vector(-107.95, -73.66, 0), Vector(0, 0, 1), 2.2225),
], False)
sketch8.addConstraint([
    Sketcher.Constraint("Equal", 0, 1),
    Sketcher.Constraint("Equal", 1, 2),
    Sketcher.Constraint("Equal", 2, 3),
    Sketcher.Constraint("Symmetric", 1, 3, 2, 3, -2),
    Sketcher.Constraint("Symmetric", 0, 3, 3, 3, -2),
    Sketcher.Constraint("Vertical", 0, 3, 1, 3),
    Sketcher.Constraint("Diameter", 0, Q("0.175 in")),
    Sketcher.Constraint("DistanceY", 0, 3, 1, 3, Q("1 in")),
    Sketcher.Constraint("DistanceY", 0, 3, -1, 1, Q("2.9 in")),
    Sketcher.Constraint("DistanceX", 2, 3, 1, 3, Q("8.5 in")),
])
pocket7 = body.newObject("PartDesign::Pocket", "Pocket006")
pocket7.Profile = sketch8
pocket7.Length = Q("0.28 in")
pocket7.Reversed = True

# Sketch on XZ plane
sketch9 = body.newObject("Sketcher::SketchObject", "Sketch008")
sketch9.AttachmentSupport = (doc.getObject("XZ_Plane"), [""])
sketch9.MapMode = "FlatFace"
sketch9.AttachmentOffset = App.Placement(Vector(0, 0, -0.75 * 25.4), App.Rotation())
sketch9.addGeometry([
    Part.Circle(Vector(-57.15, 82.55, 0), Vector(0, 0, 1), 2.159),
    Part.Circle(Vector(57.15, 82.55, 0), Vector(0, 0, 1), 2.159),
], False)
sketch9.addConstraint([
    Sketcher.Constraint("Equal", 0, 1),
    Sketcher.Constraint("Symmetric", 0, 3, 1, 3, -2),
    Sketcher.Constraint("Diameter", 0, Q("0.17 in")),
    Sketcher.Constraint("DistanceX", 0, 3, 1, 3, Q("4.5 in")),
    Sketcher.Constraint("DistanceY", -1, 1, 0, 3, Q("3.25 in")),
])
pocket8 = body.newObject("PartDesign::Pocket", "Pocket007")
pocket8.Profile = sketch9
pocket8.Length = Q("0.35 in")
pocket8.Reversed = True
doc.recompute()

fillet3 = body.newObject("PartDesign::Fillet", "Fillet002")
fillet3.Base = (pocket8, edges_at(pocket8, [
    (-114.3, 3.619, -88.9),
    (114.3, 3.619, -88.9),
    (-114.3, 9.525, 88.9),
    (114.3, 9.525, 88.9),
]))
fillet3.Radius = Q("0.1 in")

# Sketch on XY plane
sketch10 = body.newObject("Sketcher::SketchObject", "Sketch009")
sketch10.AttachmentSupport = (doc.getObject("XY_Plane"), [""])
sketch10.MapMode = "FlatFace"
sketch10.AttachmentOffset = App.Placement(Vector(0, 0, -3 * 25.4), App.Rotation())
sketch10.addGeometry([
    Part.Circle(Vector(48.20666, 10.541, 0), Vector(0, 0, 1), 2.2225),
    Part.Circle(Vector(67.25666, 10.541, 0), Vector(0, 0, 1), 2.2225),
    Part.Circle(Vector(-67.25666, 10.541, 0), Vector(0, 0, 1), 2.2225),
    Part.Circle(Vector(-48.20666, 10.541, 0), Vector(0, 0, 1), 2.2225),
], False)
sketch10.addConstraint([
    Sketcher.Constraint("Equal", 0, 1),
    Sketcher.Constraint("Equal", 1, 2),
    Sketcher.Constraint("Equal", 2, 3),
    Sketcher.Constraint("Symmetric", 1, 3, 2, 3, -2),
    Sketcher.Constraint("Symmetric", 0, 3, 3, 3, -2),
    Sketcher.Constraint("Horizontal", 0, 3, 1, 3),
    Sketcher.Constraint("Diameter", 0, Q("0.175 in")),
    Sketcher.Constraint("DistanceX", 0, 3, 1, 3, Q("0.75 in")),
    Sketcher.Constraint("DistanceY", -1, 1, 0, 3, Q("0.415 in")),
    Sketcher.Constraint("DistanceX", -1, 1, 0, 3, Q("1.8979 in")),
])
pocket9 = body.newObject("PartDesign::Pocket", "Pocket008")
pocket9.Profile = sketch10
pocket9.Length = Q("0.22 in")

# Sketch on YZ plane
sketch11 = body.newObject("Sketcher::SketchObject", "Sketch010")
sketch11.AttachmentSupport = (doc.getObject("YZ_Plane"), [""])
sketch11.MapMode = "FlatFace"
sketch11.AttachmentOffset = App.Placement(Vector(0, 0, 4 * 25.4), App.Rotation())
sketch11.addGeometry(Part.Circle(Vector(10.795, -25.4, 0), Vector(0, 0, 1), 2.2225), False)
sketch11.addConstraint([
    Sketcher.Constraint("Diameter", 0, Q("0.175 in")),
    Sketcher.Constraint("DistanceY", 0, 3, -1, 1, Q("1 in")),
    Sketcher.Constraint("DistanceX", -1, 1, 0, 3, Q("0.425 in")),
])
pocket10 = body.newObject("PartDesign::Pocket", "Pocket009")
pocket10.Profile = sketch11
pocket10.Length = Q("0.285 in")
pocket10.Reversed = True
doc.recompute()

mirrored = body.newObject("PartDesign::Mirrored", "Mirrored")
mirrored.Originals = [pocket10]
mirrored.MirrorPlane = (doc.getObject("YZ_Plane"), [""])
body.Tip = mirrored

doc.recompute()
